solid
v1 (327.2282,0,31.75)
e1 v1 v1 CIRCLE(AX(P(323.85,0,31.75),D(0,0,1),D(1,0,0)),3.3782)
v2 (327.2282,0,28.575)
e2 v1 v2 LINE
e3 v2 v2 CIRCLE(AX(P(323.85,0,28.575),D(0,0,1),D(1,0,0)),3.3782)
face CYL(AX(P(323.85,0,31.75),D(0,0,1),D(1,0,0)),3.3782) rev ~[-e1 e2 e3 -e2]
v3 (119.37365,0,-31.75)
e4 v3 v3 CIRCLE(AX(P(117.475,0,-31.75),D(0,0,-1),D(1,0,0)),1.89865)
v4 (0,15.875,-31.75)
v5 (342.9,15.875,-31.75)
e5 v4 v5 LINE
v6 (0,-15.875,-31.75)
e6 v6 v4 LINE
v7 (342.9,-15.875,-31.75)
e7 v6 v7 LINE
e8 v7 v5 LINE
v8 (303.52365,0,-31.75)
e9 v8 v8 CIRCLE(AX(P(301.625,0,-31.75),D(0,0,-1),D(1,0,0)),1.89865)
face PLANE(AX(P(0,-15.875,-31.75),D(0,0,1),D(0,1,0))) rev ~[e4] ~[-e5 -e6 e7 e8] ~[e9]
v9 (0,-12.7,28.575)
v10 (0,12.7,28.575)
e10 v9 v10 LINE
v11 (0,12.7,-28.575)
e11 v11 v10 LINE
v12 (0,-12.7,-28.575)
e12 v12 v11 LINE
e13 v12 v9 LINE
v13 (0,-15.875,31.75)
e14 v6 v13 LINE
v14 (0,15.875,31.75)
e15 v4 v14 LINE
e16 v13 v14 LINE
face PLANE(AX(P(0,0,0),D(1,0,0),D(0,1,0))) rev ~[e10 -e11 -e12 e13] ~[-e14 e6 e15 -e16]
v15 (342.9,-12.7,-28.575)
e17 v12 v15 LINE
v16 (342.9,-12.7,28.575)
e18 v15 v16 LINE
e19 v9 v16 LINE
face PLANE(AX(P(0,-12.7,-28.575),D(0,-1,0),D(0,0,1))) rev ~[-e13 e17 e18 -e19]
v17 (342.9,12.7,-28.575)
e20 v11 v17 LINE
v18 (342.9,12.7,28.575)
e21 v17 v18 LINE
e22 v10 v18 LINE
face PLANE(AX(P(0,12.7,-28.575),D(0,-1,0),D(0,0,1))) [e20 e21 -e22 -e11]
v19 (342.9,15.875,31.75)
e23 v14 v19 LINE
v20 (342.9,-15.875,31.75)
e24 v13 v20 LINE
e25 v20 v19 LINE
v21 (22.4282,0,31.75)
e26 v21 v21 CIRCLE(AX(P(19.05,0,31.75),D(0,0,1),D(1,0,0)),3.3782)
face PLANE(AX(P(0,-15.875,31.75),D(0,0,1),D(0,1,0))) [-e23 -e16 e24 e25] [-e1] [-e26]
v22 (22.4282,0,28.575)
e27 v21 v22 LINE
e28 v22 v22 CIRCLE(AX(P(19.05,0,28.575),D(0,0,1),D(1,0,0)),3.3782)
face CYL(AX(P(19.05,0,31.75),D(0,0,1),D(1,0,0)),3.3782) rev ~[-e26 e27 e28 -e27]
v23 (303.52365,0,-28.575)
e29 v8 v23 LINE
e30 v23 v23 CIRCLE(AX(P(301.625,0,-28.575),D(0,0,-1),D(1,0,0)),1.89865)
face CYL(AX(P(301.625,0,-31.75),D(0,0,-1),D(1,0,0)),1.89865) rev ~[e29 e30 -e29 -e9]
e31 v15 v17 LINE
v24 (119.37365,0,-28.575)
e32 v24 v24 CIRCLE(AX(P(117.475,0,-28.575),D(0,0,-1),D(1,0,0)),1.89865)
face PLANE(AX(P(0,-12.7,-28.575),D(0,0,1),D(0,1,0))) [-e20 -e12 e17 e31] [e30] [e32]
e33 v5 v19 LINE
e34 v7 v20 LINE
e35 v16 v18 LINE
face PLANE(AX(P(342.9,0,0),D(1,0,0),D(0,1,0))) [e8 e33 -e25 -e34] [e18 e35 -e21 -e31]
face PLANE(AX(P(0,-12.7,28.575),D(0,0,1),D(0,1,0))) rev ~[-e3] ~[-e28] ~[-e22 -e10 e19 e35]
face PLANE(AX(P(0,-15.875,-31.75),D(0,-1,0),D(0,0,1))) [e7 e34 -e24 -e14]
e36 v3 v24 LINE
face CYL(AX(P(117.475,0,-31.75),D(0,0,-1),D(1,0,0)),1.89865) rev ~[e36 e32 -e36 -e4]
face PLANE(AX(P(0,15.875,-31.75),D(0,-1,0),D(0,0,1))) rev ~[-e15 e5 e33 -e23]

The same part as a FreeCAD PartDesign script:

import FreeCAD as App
import Part
import Sketcher
Q = App.Units.Quantity

doc = App.newDocument("Part")
body = doc.addObject("PartDesign::Body", "Body")

sketch1 = body.newObject("Sketcher::SketchObject", "Sketch")
sketch1.AttachmentSupport = (doc.getObject("YZ_Plane"), [""])
sketch1.MapMode = "FlatFace"
sketch1.addGeometry(Part.LineSegment(App.Vector(-15.875, 31.75, 0), App.Vector(-15.875, -31.75, 0)), False)
sketch1.addGeometry(Part.LineSegment(App.Vector(-15.875, -31.75, 0), App.Vector(15.875, -31.75, 0)), False)
sketch1.addGeometry(Part.LineSegment(App.Vector(15.875, -31.75, 0), App.Vector(15.875, 31.75, 0)), False)
sketch1.addGeometry(Part.LineSegment(App.Vector(15.875, 31.75, 0), App.Vector(-15.875, 31.75, 0)), False)
sketch1.addGeometry(Part.LineSegment(App.Vector(12.7, -28.575, 0), App.Vector(-12.7, -28.575, 0)), False)
sketch1.addGeometry(Part.LineSegment(App.Vector(-12.7, -28.575, 0), App.Vector(-12.7, 28.575, 0)), False)
sketch1.addGeometry(Part.LineSegment(App.Vector(-12.7, 28.575, 0), App.Vector(12.7, 28.575, 0)), False)
sketch1.addGeometry(Part.LineSegment(App.Vector(12.7, 28.575, 0), App.Vector(12.7, -28.575, 0)), False)
sketch1.addConstraint(Sketcher.Constraint("Coincident", 0, 2, 1, 1))
sketch1.addConstraint(Sketcher.Constraint("Coincident", 1, 2, 2, 1))
sketch1.addConstraint(Sketcher.Constraint("Coincident", 2, 2, 3, 1))
sketch1.addConstraint(Sketcher.Constraint("Coincident", 3, 2, 0, 1))
sketch1.addConstraint(Sketcher.Constraint("Coincident", 4, 2, 5, 1))
sketch1.addConstraint(Sketcher.Constraint("Coincident", 5, 2, 6, 1))
sketch1.addConstraint(Sketcher.Constraint("Coincident", 6, 2, 7, 1))
sketch1.addConstraint(Sketcher.Constraint("Coincident", 7, 2, 4, 1))
sketch1.addConstraint(Sketcher.Constraint("Vertical", 0))
sketch1.addConstraint(Sketcher.Constraint("Horizontal", 1))
sketch1.addConstraint(Sketcher.Constraint("Vertical", 2))
sketch1.addConstraint(Sketcher.Constraint("Horizontal", 3))
sketch1.addConstraint(Sketcher.Constraint("Horizontal", 4))
sketch1.addConstraint(Sketcher.Constraint("Vertical", 5))
sketch1.addConstraint(Sketcher.Constraint("Horizontal", 6))
sketch1.addConstraint(Sketcher.Constraint("Vertical", 7))
sketch1.addConstraint(Sketcher.Constraint("Symmetric", 0, 2, 2, 2, -1, 1))
sketch1.addConstraint(Sketcher.Constraint("Symmetric", 4, 2, 6, 2, -1, 1))
sketch1.addConstraint(Sketcher.Constraint("DistanceX", 4, 2, 4, 1, Q("1 in")))
sketch1.addConstraint(Sketcher.Constraint("DistanceY", 0, 2, 0, 1, Q("2.5 in")))
sketch1.addConstraint(Sketcher.Constraint("DistanceX", 1, 1, 1, 2, Q("1.25 in")))
sketch1.addConstraint(Sketcher.Constraint("DistanceY", 5, 1, 5, 2, Q("2.25 in")))
pad1 = body.newObject("PartDesign::Pad", "Pad")
pad1.Profile = sketch1
pad1.Length = Q("13.5 in")

sketch2 = body.newObject("Sketcher::SketchObject", "Sketch001")
sketch2.AttachmentSupport = (doc.getObject("XY_Plane"), [""])
sketch2.MapMode = "FlatFace"
sketch2.AttachmentOffset = App.Placement(App.Vector(0, 0, -1.25 * 25.4), App.Rotation())
sketch2.addGeometry(Part.Circle(App.Vector(117.475, 0, 0), App.Vector(0, 0, 1), 1.89865), False)
sketch2.addGeometry(Part.Circle(App.Vector(301.625, 0, 0), App.Vector(0, 0, 1), 1.89865), False)
sketch2.addConstraint(Sketcher.Constraint("Equal", 0, 1))
sketch2.addConstraint(Sketcher.Constraint("PointOnObject", 0, 3, -1))
sketch2.addConstraint(Sketcher.Constraint("PointOnObject", 1, 3, -1))
sketch2.addConstraint(Sketcher.Constraint("Diameter", 0, Q("0.1495 in")))
sketch2.addConstraint(Sketcher.Constraint("DistanceX", 0, 3, 1, 3, Q("7.25 in")))
sketch2.addConstraint(Sketcher.Constraint("DistanceX", -1, 1, 0, 3, Q("4.625 in")))
pocket1 = body.newObject("PartDesign::Pocket", "Pocket")
pocket1.Profile = sketch2
pocket1.Length = Q("0.125 in")
pocket1.Reversed = True

sketch3 = body.newObject("Sketcher::SketchObject", "Sketch002")
sketch3.AttachmentSupport = (doc.getObject("XY_Plane"), [""])
sketch3.MapMode = "FlatFace"
sketch3.AttachmentOffset = App.Placement(App.Vector(0, 0, 1.25 * 25.4), App.Rotation())
sketch3.addGeometry(Part.Circle(App.Vector(19.05, 0, 0), App.Vector(0, 0, 1), 3.3782), False)
sketch3.addGeometry(Part.Circle(App.Vector(323.85, 0, 0), App.Vector(0, 0, 1), 3.3782), False)
sketch3.addConstraint(Sketcher.Constraint("Equal", 0, 1))
sketch3.addConstraint(Sketcher.Constraint("PointOnObject", 0, 3, -1))
sketch3.addConstraint(Sketcher.Constraint("PointOnObject", 1, 3, -1))
sketch3.addConstraint(Sketcher.Constraint("Diameter", 0, Q("0.266 in")))
sketch3.addConstraint(Sketcher.Constraint("DistanceX", 0, 3, 1, 3, Q("12 in")))
sketch3.addConstraint(Sketcher.Constraint("DistanceX", -1, 1, 0, 3, Q("0.75 in")))
pocket2 = body.newObject("PartDesign::Pocket", "Pocket001")
pocket2.Profile = sketch3
pocket2.Length = Q("0.125 in")

doc.recompute()
